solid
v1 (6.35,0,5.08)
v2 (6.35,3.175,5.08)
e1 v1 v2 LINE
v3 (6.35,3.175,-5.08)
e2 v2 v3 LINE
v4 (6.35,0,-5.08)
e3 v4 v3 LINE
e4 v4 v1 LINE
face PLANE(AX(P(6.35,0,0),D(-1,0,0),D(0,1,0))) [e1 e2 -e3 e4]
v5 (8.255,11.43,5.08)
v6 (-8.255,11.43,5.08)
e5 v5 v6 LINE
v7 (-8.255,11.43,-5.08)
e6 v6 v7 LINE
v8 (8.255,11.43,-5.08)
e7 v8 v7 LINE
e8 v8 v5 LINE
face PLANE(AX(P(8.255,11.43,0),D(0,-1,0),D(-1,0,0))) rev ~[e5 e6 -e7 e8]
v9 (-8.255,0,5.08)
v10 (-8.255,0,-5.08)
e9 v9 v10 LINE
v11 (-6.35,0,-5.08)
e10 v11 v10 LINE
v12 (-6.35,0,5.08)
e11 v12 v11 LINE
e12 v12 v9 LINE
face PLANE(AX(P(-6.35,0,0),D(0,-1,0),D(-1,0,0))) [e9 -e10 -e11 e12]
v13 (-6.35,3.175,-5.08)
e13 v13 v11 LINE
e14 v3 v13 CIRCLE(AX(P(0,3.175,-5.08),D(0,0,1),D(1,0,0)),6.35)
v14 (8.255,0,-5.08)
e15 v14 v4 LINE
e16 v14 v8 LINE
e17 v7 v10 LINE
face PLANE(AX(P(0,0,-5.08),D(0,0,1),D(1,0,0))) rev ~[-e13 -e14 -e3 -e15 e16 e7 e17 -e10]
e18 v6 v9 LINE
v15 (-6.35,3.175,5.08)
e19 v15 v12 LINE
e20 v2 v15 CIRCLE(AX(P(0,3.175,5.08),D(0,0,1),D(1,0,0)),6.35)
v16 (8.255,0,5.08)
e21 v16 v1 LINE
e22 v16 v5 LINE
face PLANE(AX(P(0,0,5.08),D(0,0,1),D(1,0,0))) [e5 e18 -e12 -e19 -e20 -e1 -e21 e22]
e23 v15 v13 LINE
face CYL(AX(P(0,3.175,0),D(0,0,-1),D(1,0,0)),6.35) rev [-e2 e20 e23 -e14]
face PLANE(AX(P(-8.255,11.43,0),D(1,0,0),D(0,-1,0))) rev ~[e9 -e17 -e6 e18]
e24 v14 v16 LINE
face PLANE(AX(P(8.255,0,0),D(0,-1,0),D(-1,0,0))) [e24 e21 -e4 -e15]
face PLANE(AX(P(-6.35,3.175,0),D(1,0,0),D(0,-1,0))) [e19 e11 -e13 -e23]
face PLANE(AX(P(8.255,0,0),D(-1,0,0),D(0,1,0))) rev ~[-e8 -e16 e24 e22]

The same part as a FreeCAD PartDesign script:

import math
import FreeCAD as App
import Part
import Sketcher
Q = App.Units.Quantity

doc = App.newDocument("Part")
params = doc.addObject("Spreadsheet::Sheet", "Params")
for row, (alias, value) in enumerate([
    ("sketch1_radius", "0.25 in"),
    ("sketch1_width", "0.075 in"),
    ("sketch1_height", "0.45 in"),
    ("sketch1_height2", "0.125 in"),
    ("pad1_length", "0.4 in"),
], start=1):
    params.set(f"A{row}", alias)
    params.set(f"B{row}", "=" + value)
    params.setAlias(f"B{row}", alias)

body = doc.addObject("PartDesign::Body", "Body")

# Sketch on XY plane
sketch1 = doc.addObject("Sketcher::SketchObject", "Sketch")
body.addObject(sketch1)
sketch1.AttachmentSupport = (doc.XY_Plane, [""])
sketch1.MapMode = "FlatFace"
sketch1.addGeometry(Part.LineSegment(App.Vector(6.35, 3.175, 0), App.Vector(6.35, 0, 0)), False)
sketch1.addGeometry(Part.LineSegment(App.Vector(6.35, 0, 0), App.Vector(8.255, 0, 0)), False)
sketch1.addGeometry(Part.LineSegment(App.Vector(8.255, 0, 0), App.Vector(8.255, 11.43, 0)), False)
sketch1.addGeometry(Part.LineSegment(App.Vector(8.255, 11.43, 0), App.Vector(-8.255, 11.43, 0)), False)
sketch1.addGeometry(Part.LineSegment(App.Vector(-8.255, 11.43, 0), App.Vector(-8.255, 0, 0)), False)
sketch1.addGeometry(Part.LineSegment(App.Vector(-8.255, 0, 0), App.Vector(-6.35, 0, 0)), False)
sketch1.addGeometry(Part.LineSegment(App.Vector(-6.35, 0, 0), App.Vector(-6.35, 3.175, 0)), False)
sketch1.addGeometry(Part.ArcOfCircle(Part.Circle(App.Vector(0, 3.175, 0), App.Vector(0, 0, 1), 6.35), math.radians(0), math.radians(180)), False)
sketch1.addConstraint(Sketcher.Constraint("Coincident", 0, 2, 1, 1))
sketch1.addConstraint(Sketcher.Constraint("Coincident", 1, 2, 2, 1))
sketch1.addConstraint(Sketcher.Constraint("Coincident", 2, 2, 3, 1))
sketch1.addConstraint(Sketcher.Constraint("Coincident", 3, 2, 4, 1))
sketch1.addConstraint(Sketcher.Constraint("Coincident", 4, 2, 5, 1))
sketch1.addConstraint(Sketcher.Constraint("Coincident", 5, 2, 6, 1))
sketch1.addConstraint(Sketcher.Constraint("Tangent", 6, 2, 7, 2))
sketch1.addConstraint(Sketcher.Constraint("Tangent", 7, 1, 0, 1))
sketch1.addConstraint(Sketcher.Constraint("Vertical", 0))
sketch1.addConstraint(Sketcher.Constraint("Horizontal", 1))
sketch1.addConstraint(Sketcher.Constraint("Vertical", 2))
sketch1.addConstraint(Sketcher.Constraint("Horizontal", 3))
sketch1.addConstraint(Sketcher.Constraint("Vertical", 4))
sketch1.addConstraint(Sketcher.Constraint("Horizontal", 5))
sketch1.addConstraint(Sketcher.Constraint("Vertical", 6))
sketch1.addConstraint(Sketcher.Constraint("Symmetric", 1, 2, 4, 2, -1, 1))
sketch1.addConstraint(Sketcher.Constraint("Symmetric", 0, 2, 5, 2, -2))
sketch1.addConstraint(Sketcher.Constraint("Radius", 7, Q("0.25 in")))
sketch1.addConstraint(Sketcher.Constraint("DistanceX", 1, 1, 1, 2, Q("0.075 in")))
sketch1.addConstraint(Sketcher.Constraint("DistanceY", 2, 1, 2, 2, Q("0.45 in")))
sketch1.addConstraint(Sketcher.Constraint("DistanceY", 0, 2, 0, 1, Q("0.125 in")))
sketch1.setExpression("Constraints[17]", "Params.sketch1_radius")
sketch1.setExpression("Constraints[18]", "Params.sketch1_width")
sketch1.setExpression("Constraints[19]", "Params.sketch1_height")
sketch1.setExpression("Constraints[20]", "Params.sketch1_height2")
pad1 = doc.addObject("PartDesign::Pad", "Pad")
body.addObject(pad1)
pad1.Profile = sketch1
pad1.setExpression("Length", "Params.pad1_length")
pad1.Midplane = True

doc.recompute()
